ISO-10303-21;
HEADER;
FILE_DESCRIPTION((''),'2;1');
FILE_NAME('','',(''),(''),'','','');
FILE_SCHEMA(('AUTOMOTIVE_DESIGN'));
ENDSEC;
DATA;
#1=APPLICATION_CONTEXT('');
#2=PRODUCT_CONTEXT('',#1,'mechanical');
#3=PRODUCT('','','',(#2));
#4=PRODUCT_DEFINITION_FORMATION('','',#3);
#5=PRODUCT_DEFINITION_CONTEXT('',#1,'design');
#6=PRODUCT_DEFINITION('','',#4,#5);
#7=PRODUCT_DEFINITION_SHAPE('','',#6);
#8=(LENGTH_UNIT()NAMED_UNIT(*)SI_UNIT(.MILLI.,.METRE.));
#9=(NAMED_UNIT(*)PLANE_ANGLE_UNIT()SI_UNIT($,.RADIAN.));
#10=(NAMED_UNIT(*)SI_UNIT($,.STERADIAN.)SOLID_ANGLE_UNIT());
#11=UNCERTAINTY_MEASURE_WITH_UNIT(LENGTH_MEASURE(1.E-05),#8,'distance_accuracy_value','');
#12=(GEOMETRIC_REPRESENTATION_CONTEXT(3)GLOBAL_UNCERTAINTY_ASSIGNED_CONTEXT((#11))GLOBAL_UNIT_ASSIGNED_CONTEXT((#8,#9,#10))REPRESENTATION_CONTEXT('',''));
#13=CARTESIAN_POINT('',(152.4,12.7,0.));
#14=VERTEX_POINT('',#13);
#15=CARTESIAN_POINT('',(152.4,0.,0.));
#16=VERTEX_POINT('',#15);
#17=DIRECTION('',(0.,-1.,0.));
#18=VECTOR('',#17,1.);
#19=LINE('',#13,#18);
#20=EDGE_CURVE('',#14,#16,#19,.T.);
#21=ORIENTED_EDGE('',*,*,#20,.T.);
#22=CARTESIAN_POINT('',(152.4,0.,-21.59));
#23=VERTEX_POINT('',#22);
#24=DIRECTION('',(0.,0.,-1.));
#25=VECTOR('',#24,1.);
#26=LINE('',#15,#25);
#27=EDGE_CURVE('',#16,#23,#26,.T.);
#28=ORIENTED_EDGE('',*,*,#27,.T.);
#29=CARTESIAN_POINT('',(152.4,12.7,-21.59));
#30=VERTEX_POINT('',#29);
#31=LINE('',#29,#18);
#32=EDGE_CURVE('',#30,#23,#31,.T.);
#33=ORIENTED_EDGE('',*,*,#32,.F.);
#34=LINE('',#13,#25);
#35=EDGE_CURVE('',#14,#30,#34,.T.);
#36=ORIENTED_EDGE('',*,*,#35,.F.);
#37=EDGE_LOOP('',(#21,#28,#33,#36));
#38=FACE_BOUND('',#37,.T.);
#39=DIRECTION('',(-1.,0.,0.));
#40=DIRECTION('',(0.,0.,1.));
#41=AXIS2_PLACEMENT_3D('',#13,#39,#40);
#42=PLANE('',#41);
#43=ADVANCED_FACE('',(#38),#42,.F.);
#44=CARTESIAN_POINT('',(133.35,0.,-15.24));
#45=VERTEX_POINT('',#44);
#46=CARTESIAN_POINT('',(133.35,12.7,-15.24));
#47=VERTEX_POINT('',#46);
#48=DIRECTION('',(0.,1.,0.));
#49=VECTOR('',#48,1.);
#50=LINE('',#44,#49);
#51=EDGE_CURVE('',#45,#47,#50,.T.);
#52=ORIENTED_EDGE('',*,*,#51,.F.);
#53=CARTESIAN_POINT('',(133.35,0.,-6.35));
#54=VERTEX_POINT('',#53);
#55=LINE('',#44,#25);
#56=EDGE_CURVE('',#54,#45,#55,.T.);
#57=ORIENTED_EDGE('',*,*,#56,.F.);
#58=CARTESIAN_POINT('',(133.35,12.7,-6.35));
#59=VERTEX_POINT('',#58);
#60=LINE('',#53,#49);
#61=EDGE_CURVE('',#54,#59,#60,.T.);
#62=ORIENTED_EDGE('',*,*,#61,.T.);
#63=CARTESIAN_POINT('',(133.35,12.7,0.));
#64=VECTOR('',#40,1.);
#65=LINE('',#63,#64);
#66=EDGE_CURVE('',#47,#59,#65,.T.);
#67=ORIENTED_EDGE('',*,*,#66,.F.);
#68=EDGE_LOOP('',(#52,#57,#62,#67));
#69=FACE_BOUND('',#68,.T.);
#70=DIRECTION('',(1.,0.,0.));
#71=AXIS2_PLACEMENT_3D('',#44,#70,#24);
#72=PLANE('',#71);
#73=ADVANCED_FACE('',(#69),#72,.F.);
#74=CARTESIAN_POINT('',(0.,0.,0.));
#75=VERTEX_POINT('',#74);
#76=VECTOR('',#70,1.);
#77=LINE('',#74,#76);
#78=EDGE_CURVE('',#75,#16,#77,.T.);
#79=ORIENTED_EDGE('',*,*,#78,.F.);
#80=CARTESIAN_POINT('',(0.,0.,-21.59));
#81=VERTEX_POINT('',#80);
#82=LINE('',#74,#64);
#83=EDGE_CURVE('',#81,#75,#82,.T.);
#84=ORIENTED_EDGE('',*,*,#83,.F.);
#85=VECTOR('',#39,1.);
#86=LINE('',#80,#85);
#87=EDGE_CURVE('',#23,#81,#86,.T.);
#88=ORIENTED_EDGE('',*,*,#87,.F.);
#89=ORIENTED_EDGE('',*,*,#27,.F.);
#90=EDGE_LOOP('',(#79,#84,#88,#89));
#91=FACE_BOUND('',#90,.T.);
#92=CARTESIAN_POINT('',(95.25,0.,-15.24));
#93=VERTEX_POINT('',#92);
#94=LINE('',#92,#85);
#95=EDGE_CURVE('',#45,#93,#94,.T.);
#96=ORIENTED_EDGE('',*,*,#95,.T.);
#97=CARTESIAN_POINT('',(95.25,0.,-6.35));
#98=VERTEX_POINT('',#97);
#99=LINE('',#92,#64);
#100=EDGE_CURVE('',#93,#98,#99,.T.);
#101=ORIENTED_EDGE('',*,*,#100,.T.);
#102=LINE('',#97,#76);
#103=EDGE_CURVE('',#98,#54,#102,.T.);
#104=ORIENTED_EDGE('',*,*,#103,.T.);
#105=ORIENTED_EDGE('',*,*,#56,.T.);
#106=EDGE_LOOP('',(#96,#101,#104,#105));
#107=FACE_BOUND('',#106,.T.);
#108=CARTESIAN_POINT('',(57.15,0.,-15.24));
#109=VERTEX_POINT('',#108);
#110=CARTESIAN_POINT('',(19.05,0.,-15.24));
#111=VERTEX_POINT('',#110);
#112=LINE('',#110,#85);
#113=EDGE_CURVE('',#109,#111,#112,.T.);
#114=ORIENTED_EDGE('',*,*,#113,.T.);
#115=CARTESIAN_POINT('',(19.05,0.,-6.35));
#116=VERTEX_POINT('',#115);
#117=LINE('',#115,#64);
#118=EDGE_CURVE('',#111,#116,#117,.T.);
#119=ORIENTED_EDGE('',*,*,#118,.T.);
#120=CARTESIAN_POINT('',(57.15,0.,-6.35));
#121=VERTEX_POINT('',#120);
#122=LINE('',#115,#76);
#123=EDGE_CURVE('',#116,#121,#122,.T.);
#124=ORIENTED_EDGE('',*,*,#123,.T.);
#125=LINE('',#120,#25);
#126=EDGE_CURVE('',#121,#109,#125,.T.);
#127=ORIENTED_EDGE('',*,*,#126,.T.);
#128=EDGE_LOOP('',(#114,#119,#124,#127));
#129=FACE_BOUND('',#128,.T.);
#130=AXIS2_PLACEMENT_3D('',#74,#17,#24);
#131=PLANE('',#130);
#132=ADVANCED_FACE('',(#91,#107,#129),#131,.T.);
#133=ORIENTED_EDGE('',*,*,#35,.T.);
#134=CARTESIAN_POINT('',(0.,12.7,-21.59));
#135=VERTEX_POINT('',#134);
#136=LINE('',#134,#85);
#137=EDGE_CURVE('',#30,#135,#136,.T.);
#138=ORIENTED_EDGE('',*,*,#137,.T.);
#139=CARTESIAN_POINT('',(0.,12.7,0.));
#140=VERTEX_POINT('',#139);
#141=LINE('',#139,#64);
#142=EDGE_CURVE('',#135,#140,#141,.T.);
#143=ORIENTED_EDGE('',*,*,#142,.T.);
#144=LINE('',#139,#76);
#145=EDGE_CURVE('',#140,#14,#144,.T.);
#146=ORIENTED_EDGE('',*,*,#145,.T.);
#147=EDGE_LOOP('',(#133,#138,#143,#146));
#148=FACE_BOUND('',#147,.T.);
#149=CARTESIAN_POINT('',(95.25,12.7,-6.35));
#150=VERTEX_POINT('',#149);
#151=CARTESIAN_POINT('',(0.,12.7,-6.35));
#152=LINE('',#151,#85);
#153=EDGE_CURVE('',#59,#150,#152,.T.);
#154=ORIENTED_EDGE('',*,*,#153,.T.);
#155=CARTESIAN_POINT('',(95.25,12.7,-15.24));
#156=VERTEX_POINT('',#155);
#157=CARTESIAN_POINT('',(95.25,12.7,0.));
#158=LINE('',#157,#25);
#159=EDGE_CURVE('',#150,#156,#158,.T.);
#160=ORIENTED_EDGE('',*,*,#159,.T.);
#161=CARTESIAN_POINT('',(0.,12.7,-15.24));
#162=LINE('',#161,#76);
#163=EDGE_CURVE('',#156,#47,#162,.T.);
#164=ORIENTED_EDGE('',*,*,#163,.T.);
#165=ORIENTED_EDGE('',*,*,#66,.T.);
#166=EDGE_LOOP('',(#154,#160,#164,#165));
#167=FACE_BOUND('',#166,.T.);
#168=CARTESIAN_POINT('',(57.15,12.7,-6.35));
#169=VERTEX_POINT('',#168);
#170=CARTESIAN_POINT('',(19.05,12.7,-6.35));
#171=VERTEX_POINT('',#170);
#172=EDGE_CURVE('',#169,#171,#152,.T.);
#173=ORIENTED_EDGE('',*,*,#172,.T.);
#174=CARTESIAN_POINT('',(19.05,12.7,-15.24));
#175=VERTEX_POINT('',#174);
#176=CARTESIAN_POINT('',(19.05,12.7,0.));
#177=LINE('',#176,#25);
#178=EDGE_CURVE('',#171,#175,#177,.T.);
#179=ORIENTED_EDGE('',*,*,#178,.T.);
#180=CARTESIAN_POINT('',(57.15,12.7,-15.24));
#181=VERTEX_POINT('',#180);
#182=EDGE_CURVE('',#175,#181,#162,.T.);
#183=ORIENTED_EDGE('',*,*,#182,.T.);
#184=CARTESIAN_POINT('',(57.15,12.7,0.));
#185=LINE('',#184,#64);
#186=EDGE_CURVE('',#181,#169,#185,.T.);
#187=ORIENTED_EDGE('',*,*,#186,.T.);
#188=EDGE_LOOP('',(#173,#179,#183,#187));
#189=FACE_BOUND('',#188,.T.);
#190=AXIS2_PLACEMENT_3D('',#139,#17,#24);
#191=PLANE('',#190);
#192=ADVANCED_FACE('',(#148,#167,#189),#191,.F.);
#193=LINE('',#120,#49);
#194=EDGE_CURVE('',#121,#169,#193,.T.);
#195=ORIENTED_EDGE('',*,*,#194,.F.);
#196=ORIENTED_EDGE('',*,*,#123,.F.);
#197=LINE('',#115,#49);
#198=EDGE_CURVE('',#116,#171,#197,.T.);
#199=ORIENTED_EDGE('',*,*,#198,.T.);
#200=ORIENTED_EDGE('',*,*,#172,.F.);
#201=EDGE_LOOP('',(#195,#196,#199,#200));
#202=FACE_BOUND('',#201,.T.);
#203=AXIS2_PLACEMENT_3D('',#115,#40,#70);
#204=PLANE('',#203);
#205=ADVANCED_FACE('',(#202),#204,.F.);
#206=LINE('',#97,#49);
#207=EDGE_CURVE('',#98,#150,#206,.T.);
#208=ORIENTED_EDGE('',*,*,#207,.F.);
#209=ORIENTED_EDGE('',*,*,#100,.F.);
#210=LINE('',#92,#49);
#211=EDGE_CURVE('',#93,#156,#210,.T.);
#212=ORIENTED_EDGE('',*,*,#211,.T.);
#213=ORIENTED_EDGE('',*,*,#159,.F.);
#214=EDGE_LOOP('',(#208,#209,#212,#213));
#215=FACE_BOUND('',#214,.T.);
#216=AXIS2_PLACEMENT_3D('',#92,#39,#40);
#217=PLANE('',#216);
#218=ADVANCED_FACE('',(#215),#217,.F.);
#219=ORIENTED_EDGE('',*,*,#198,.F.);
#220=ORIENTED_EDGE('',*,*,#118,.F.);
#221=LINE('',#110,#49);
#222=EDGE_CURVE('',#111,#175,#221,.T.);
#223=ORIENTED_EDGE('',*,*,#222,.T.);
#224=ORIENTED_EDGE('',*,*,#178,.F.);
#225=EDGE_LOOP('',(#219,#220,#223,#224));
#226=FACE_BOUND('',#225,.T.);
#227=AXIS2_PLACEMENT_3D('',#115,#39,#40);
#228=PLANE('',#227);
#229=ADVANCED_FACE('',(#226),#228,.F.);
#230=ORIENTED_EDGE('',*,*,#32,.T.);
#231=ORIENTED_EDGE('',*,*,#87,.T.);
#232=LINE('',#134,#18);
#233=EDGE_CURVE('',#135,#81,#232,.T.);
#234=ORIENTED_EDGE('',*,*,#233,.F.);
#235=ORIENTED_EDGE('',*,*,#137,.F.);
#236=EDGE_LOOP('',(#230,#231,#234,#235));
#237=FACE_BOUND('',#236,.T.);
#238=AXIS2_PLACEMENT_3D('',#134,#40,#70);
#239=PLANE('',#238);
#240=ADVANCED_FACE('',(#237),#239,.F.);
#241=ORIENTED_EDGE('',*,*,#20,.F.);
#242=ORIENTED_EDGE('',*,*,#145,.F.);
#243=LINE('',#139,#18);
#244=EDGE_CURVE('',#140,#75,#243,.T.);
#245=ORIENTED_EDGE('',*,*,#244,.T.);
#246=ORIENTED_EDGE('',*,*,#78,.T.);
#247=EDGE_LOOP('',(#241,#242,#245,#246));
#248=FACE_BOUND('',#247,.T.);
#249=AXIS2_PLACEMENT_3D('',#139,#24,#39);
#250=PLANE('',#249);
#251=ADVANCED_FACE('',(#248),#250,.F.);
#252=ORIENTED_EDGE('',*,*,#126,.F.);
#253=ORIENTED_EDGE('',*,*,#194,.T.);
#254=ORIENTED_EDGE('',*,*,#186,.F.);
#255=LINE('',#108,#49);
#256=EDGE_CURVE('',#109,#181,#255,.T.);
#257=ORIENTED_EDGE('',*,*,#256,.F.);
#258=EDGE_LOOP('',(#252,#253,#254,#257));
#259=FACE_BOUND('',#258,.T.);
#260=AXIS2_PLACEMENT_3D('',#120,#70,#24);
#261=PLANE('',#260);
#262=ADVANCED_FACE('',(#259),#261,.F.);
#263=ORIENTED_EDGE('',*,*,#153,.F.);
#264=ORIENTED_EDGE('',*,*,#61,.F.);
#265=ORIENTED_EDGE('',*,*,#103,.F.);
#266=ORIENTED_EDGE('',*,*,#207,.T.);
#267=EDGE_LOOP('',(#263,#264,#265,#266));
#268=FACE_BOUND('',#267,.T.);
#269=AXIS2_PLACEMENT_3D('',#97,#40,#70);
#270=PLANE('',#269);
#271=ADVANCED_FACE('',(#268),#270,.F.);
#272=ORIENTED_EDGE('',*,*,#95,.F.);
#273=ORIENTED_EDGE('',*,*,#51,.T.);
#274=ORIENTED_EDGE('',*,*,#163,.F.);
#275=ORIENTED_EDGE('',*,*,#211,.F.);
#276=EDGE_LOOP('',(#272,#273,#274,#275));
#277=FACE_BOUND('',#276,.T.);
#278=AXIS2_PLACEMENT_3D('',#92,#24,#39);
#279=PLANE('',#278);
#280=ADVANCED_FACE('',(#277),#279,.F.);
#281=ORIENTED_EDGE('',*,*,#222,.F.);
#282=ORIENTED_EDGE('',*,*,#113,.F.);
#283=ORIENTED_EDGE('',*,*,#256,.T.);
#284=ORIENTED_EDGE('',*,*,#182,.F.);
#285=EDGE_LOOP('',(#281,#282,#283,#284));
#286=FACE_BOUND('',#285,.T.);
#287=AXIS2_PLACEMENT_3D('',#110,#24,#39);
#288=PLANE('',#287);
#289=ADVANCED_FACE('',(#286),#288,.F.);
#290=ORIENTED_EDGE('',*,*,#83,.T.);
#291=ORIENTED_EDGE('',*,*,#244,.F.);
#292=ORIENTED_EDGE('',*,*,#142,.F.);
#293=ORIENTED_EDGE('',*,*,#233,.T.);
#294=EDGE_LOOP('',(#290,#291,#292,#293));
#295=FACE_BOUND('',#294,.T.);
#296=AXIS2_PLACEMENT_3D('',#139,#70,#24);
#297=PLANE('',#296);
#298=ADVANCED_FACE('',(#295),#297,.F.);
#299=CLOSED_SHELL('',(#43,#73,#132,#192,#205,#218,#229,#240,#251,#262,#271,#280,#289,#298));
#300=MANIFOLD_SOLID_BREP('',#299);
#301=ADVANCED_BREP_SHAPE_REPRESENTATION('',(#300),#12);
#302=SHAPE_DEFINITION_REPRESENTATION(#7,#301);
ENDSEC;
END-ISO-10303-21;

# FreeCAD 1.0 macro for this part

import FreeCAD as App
import Part
import Sketcher
from FreeCAD import Vector
Q = App.Units.Quantity


def add_polygon(sketch, points):
    """Adds a closed chain of lines whose ends are joined by coincident constraints."""
    first, n = sketch.GeometryCount, len(points)
    for a, b in zip(points, points[1:] + points[:1]):
        sketch.addGeometry(Part.LineSegment(App.Vector(*a, 0), App.Vector(*b, 0)), False)
    for i in range(n):
        sketch.addConstraint(Sketcher.Constraint("Coincident", first + i, 2, first + (i + 1) % n, 1))

doc = App.newDocument("Part")
body = doc.addObject("PartDesign::Body", "Body")

# Sketch on XZ plane
sketch1 = body.newObject("Sketcher::SketchObject", "Sketch")
sketch1.AttachmentSupport = (doc.getObject("XZ_Plane"), [""])
sketch1.MapMode = "FlatFace"
add_polygon(sketch1, [(0, -21.59), (0, 0), (152.4, 0), (152.4, -21.59)])  # lines 0-3
sketch1.addConstraint(Sketcher.Constraint("Vertical", 0))
sketch1.addConstraint(Sketcher.Constraint("Horizontal", 1))
sketch1.addConstraint(Sketcher.Constraint("Vertical", 2))
sketch1.addConstraint(Sketcher.Constraint("Horizontal", 3))
sketch1.addConstraint(Sketcher.Constraint("Coincident", 0, 2, -1, 1))
sketch1.addConstraint(Sketcher.Constraint("DistanceX", 1, 1, 1, 2, Q("6 in")))
sketch1.addConstraint(Sketcher.Constraint("DistanceY", 0, 1, 0, 2, Q("0.85 in")))
pad1 = body.newObject("PartDesign::Pad", "Pad")
pad1.Profile = sketch1
pad1.Length = Q("0.5 in")
pad1.Reversed = True

# Sketch on XZ plane
sketch2 = body.newObject("Sketcher::SketchObject", "Sketch001")
sketch2.AttachmentSupport = (doc.getObject("XZ_Plane"), [""])
sketch2.MapMode = "FlatFace"
sketch2.AttachmentOffset = App.Placement(Vector(0, 0, -0.5 * 25.4), App.Rotation())
add_polygon(sketch2, [(19.05, -15.24), (19.05, -6.35), (57.15, -6.35), (57.15, -15.24)])  # lines 0-3
add_polygon(sketch2, [(95.25, -15.24), (95.25, -6.35), (133.35, -6.35), (133.35, -15.24)])  # lines 4-7
sketch2.addConstraint(Sketcher.Constraint("Vertical", 0))
sketch2.addConstraint(Sketcher.Constraint("Horizontal", 1))
sketch2.addConstraint(Sketcher.Constraint("Vertical", 2))
sketch2.addConstraint(Sketcher.Constraint("Horizontal", 3))
sketch2.addConstraint(Sketcher.Constraint("Vertical", 4))
sketch2.addConstraint(Sketcher.Constraint("Horizontal", 5))
sketch2.addConstraint(Sketcher.Constraint("Vertical", 6))
sketch2.addConstraint(Sketcher.Constraint("Horizontal", 7))
sketch2.addConstraint(Sketcher.Constraint("Horizontal", 1, 2, 4, 2))
sketch2.addConstraint(Sketcher.Constraint("Horizontal", 3, 2, 6, 2))
sketch2.addConstraint(Sketcher.Constraint("Equal", 3, 5))
sketch2.addConstraint(Sketcher.Constraint("DistanceX", 1, 1, 1, 2, Q("1.5 in")))
sketch2.addConstraint(Sketcher.Constraint("DistanceX", 0, 2, 4, 2, Q("3 in")))
sketch2.addConstraint(Sketcher.Constraint("DistanceY", 0, 1, 0, 2, Q("0.35 in")))
sketch2.addConstraint(Sketcher.Constraint("DistanceY", 2, 2, -1, 1, Q("0.6 in")))
sketch2.addConstraint(Sketcher.Constraint("DistanceX", -1, 1, 0, 2, Q("0.75 in")))
pocket1 = body.newObject("PartDesign::Pocket", "Pocket")
pocket1.Profile = sketch2
pocket1.Type = "ThroughAll"
pocket1.Midplane = True

doc.recompute()
